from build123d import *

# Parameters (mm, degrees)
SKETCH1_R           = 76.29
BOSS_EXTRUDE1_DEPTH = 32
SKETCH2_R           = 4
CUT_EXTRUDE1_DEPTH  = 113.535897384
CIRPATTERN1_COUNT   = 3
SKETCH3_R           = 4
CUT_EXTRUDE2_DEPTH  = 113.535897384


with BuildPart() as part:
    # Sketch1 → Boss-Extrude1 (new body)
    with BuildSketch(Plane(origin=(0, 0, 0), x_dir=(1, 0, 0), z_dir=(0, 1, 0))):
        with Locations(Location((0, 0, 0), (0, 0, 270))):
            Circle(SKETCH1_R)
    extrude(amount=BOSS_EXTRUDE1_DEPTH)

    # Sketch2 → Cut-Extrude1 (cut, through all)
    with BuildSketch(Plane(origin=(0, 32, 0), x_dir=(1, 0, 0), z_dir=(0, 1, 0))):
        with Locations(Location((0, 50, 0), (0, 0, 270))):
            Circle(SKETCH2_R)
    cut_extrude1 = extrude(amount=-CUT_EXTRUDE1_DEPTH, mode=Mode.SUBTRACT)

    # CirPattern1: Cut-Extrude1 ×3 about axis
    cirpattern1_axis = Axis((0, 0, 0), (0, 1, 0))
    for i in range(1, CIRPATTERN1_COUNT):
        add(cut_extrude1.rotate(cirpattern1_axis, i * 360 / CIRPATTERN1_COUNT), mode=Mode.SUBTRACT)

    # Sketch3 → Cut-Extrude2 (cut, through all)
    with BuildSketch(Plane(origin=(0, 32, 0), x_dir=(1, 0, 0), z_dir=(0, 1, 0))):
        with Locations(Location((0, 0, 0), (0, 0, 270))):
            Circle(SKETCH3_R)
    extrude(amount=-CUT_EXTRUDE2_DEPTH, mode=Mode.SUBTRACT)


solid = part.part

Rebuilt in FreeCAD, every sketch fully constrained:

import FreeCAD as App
import Part
import Sketcher
from FreeCAD import Vector
Q = App.Units.Quantity

doc = App.newDocument("Part")
params = doc.addObject("Spreadsheet::Sheet", "Params")
for row, (alias, value) in enumerate([
    ("sketch1_diameter", "152.58 mm"),
    ("pad1_length", "32 mm"),
    ("sketch2_diameter", "8 mm"),
    ("sketch3_diameter", "8 mm"),
], start=1):
    params.set(f"A{row}", alias)
    params.set(f"B{row}", "=" + value)
    params.setAlias(f"B{row}", alias)

body = doc.addObject("PartDesign::Body", "Body")

# Sketch on XZ plane
sketch1 = body.newObject("Sketcher::SketchObject", "Sketch")
sketch1.AttachmentSupport = (doc.getObject("XZ_Plane"), [""])
sketch1.MapMode = "FlatFace"
sketch1.addGeometry(Part.Circle(Vector(0, 0, 0), Vector(0, 0, 1), 76), False)
sketch1.addConstraint([
    Sketcher.Constraint("Coincident", 0, 3, -1, 1),
    Sketcher.Constraint("Diameter", 0, Q("152.58 mm")),
])
sketch1.setExpression("Constraints[1]", "Params.sketch1_diameter")
pad1 = body.newObject("PartDesign::Pad", "Pad")
pad1.Profile = sketch1
pad1.setExpression("Length", "Params.pad1_length")
pad1.Reversed = True

# Sketch on XZ plane
sketch2 = body.newObject("Sketcher::SketchObject", "Sketch001")
sketch2.AttachmentSupport = (doc.getObject("XZ_Plane"), [""])
sketch2.MapMode = "FlatFace"
sketch2.AttachmentOffset = App.Placement(Vector(0, 0, -32), App.Rotation())
sketch2.addGeometry(Part.Circle(Vector(0, -50, 0), Vector(0, 0, 1), 4), False)
sketch2.addConstraint([
    Sketcher.Constraint("PointOnObject", 0, 3, -2),
    Sketcher.Constraint("Diameter", 0, Q("8 mm")),
    Sketcher.Constraint("DistanceY", 0, 3, -1, 1, Q("50 mm")),
])
sketch2.setExpression("Constraints[1]", "Params.sketch2_diameter")
pocket1 = body.newObject("PartDesign::Pocket", "Pocket")
pocket1.Profile = sketch2
pocket1.Type = "ThroughAll"
pocket1.Reversed = True
doc.recompute()

polarpattern = body.newObject("PartDesign::PolarPattern", "PolarPattern")
polarpattern.Originals = [pocket1]
polarpattern.Axis = (doc.getObject("Y_Axis"), [""])
polarpattern.Angle = 360
polarpattern.Occurrences = 3
body.Tip = polarpattern

# Sketch on XZ plane
sketch3 = body.newObject("Sketcher::SketchObject", "Sketch002")
sketch3.AttachmentSupport = (doc.getObject("XZ_Plane"), [""])
sketch3.MapMode = "FlatFace"
sketch3.AttachmentOffset = App.Placement(Vector(0, 0, -32), App.Rotation())
sketch3.addGeometry(Part.Circle(Vector(0, 0, 0), Vector(0, 0, 1), 4), False)
sketch3.addConstraint([
    Sketcher.Constraint("Coincident", 0, 3, -1, 1),
    Sketcher.Constraint("Diameter", 0, Q("8 mm")),
])
sketch3.setExpression("Constraints[1]", "Params.sketch3_diameter")
pocket2 = body.newObject("PartDesign::Pocket", "Pocket001")
pocket2.Profile = sketch3
pocket2.Type = "ThroughAll"
pocket2.Reversed = True

doc.recompute()
